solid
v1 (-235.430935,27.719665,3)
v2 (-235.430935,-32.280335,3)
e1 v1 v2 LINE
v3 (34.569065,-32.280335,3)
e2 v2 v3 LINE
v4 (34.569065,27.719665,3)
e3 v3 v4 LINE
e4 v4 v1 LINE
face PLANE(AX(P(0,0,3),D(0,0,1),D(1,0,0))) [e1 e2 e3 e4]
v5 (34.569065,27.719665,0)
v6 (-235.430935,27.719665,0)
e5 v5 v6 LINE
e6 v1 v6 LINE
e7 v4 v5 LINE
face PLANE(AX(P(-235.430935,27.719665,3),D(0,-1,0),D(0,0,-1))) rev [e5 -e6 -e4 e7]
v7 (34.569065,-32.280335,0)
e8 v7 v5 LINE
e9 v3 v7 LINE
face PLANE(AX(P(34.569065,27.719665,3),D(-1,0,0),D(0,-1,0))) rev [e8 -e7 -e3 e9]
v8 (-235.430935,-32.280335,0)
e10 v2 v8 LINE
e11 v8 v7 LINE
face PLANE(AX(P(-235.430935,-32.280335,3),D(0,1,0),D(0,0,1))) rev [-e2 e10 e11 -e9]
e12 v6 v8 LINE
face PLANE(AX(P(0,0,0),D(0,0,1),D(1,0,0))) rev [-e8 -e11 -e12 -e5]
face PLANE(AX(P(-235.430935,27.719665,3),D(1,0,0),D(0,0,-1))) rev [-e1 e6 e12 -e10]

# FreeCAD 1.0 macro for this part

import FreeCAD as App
import Part
import Sketcher
Q = App.Units.Quantity


def add_polygon(sketch, points):
    """Adds a closed chain of lines whose ends are joined by coincident constraints."""
    first, n = sketch.GeometryCount, len(points)
    for a, b in zip(points, points[1:] + points[:1]):
        sketch.addGeometry(Part.LineSegment(App.Vector(*a, 0), App.Vector(*b, 0)), False)
    for i in range(n):
        sketch.addConstraint(Sketcher.Constraint("Coincident", first + i, 2, first + (i + 1) % n, 1))

doc = App.newDocument("Part")
body = doc.addObject("PartDesign::Body", "Body")

# Sketch on XY plane
sketch1 = body.newObject("Sketcher::SketchObject", "Sketch")
sketch1.AttachmentSupport = (doc.getObject("XY_Plane"), [""])
sketch1.MapMode = "FlatFace"
add_polygon(sketch1, [(-235.430935, 27.719665), (-235.430935, -32.280335), (34.569065, -32.280335), (34.569065, 27.719665)])  # lines 0-3
sketch1.addConstraint([
    Sketcher.Constraint("Vertical", 0),
    Sketcher.Constraint("Horizontal", 1),
    Sketcher.Constraint("Vertical", 2),
    Sketcher.Constraint("Horizontal", 3),
    Sketcher.Constraint("DistanceX", 1, 1, 1, 2, Q("270 mm")),
    Sketcher.Constraint("DistanceY", 0, 2, 0, 1, Q("60 mm")),
    Sketcher.Constraint("DistanceX", 0, 2, -1, 1, Q("235.430935 mm")),
    Sketcher.Constraint("DistanceY", 0, 2, -1, 1, Q("32.280335 mm")),
])
pad1 = body.newObject("PartDesign::Pad", "Pad")
pad1.Profile = sketch1
pad1.Length = 3

doc.recompute()
